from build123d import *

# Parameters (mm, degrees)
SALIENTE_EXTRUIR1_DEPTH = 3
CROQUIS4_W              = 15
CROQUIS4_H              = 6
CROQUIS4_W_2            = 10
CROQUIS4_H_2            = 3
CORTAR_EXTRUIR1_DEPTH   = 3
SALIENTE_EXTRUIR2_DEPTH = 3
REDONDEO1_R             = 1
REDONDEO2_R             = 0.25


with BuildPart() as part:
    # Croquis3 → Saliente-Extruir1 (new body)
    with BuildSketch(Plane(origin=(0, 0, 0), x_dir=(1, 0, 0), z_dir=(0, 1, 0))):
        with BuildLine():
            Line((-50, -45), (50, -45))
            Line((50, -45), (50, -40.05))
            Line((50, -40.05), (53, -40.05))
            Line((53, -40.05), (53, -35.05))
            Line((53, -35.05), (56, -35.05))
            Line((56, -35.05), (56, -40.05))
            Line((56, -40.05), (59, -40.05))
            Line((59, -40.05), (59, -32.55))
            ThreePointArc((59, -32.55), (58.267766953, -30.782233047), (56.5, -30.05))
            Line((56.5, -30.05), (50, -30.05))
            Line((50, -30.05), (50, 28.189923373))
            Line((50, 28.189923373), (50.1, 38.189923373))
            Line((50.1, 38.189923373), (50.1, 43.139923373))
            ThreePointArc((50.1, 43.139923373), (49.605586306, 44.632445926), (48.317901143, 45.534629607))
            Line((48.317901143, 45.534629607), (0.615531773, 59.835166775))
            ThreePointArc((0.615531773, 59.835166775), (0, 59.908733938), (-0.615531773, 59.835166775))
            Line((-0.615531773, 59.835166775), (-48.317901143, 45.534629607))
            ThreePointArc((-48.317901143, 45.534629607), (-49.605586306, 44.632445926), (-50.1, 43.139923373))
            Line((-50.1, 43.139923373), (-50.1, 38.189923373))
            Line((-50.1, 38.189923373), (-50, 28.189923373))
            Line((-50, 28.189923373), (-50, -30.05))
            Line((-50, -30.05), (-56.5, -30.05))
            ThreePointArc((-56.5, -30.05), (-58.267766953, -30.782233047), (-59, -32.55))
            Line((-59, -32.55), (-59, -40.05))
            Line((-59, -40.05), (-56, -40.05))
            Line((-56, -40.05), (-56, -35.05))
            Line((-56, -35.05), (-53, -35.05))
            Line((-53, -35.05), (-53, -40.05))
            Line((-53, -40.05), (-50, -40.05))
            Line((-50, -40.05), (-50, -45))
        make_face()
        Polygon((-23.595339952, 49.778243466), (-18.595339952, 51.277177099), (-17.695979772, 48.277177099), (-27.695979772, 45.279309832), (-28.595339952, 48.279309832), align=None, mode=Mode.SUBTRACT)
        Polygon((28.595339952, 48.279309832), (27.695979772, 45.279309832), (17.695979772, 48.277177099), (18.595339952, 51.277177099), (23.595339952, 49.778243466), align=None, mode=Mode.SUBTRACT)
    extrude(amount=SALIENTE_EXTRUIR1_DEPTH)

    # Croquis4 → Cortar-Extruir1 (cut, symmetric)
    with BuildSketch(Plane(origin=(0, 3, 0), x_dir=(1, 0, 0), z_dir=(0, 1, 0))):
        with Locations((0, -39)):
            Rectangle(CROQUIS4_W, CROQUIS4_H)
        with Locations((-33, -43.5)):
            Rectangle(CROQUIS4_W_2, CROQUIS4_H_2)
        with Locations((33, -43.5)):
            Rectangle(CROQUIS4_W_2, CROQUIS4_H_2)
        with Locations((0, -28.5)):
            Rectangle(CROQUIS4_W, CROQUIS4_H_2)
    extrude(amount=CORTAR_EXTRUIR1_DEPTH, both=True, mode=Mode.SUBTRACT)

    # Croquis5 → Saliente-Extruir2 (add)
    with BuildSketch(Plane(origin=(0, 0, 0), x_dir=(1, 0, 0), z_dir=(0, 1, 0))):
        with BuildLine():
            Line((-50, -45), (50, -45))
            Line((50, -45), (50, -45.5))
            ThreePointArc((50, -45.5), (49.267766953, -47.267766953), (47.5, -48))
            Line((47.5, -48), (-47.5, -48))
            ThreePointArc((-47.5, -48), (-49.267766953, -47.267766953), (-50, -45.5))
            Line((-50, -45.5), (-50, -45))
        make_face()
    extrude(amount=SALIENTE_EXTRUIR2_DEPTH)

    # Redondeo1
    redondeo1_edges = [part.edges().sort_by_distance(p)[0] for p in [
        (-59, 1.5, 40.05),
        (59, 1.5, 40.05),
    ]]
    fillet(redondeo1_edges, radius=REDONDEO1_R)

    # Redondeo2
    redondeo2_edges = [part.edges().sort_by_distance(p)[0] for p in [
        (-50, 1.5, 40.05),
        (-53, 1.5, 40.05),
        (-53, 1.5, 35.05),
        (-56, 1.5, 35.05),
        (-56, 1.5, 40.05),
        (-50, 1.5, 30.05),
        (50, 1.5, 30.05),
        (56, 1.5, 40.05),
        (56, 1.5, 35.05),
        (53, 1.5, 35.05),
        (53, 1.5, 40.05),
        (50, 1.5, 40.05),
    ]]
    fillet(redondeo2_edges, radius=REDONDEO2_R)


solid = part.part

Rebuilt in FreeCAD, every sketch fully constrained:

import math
import FreeCAD as App
import Part
import Sketcher


def edges_at(feature, points):
    """Names of the edges that pass closest to the given points."""
    edges = feature.Shape.Edges
    near = lambda p: min(range(len(edges)), key=lambda i: edges[i].distToShape(Part.Vertex(*p))[0])
    return sorted({f"Edge{near(p) + 1}" for p in points})


def add_polygon(sketch, points):
    """Adds a closed chain of lines whose ends are joined by coincident constraints."""
    first, n = sketch.GeometryCount, len(points)
    for a, b in zip(points, points[1:] + points[:1]):
        sketch.addGeometry(Part.LineSegment(App.Vector(*a, 0), App.Vector(*b, 0)), False)
    for i in range(n):
        sketch.addConstraint(Sketcher.Constraint("Coincident", first + i, 2, first + (i + 1) % n, 1))

doc = App.newDocument("Part")
body = doc.addObject("PartDesign::Body", "Body")

sketch1 = body.newObject("Sketcher::SketchObject", "Sketch")
sketch1.AttachmentSupport = (doc.getObject("XZ_Plane"), [""])
sketch1.MapMode = "FlatFace"
sketch1.addGeometry(Part.LineSegment(App.Vector(-50, 45, 0), App.Vector(50, 45, 0)), False)
sketch1.addGeometry(Part.LineSegment(App.Vector(50, 45, 0), App.Vector(50, 40, 0)), False)
sketch1.addGeometry(Part.LineSegment(App.Vector(50, 40, 0), App.Vector(53, 40, 0)), False)
sketch1.addGeometry(Part.LineSegment(App.Vector(53, 40, 0), App.Vector(53, 35, 0)), False)
sketch1.addGeometry(Part.LineSegment(App.Vector(53, 35, 0), App.Vector(56, 35, 0)), False)
sketch1.addGeometry(Part.LineSegment(App.Vector(56, 35, 0), App.Vector(56, 40, 0)), False)
sketch1.addGeometry(Part.LineSegment(App.Vector(56, 40, 0), App.Vector(59, 40, 0)), False)
sketch1.addGeometry(Part.LineSegment(App.Vector(59, 40, 0), App.Vector(59, 32.5, 0)), False)
sketch1.addGeometry(Part.ArcOfCircle(Part.Circle(App.Vector(56.5, 32.5, 0), App.Vector(0, 0, 1), 2.5), math.radians(-90), math.radians(0)), False)
sketch1.addGeometry(Part.LineSegment(App.Vector(56.5, 30.1, 0), App.Vector(50, 30.1, 0)), False)
sketch1.addGeometry(Part.LineSegment(App.Vector(50, 30.1, 0), App.Vector(50, -28.2, 0)), False)
sketch1.addGeometry(Part.LineSegment(App.Vector(50, -28.2, 0), App.Vector(50.1, -38.2, 0)), False)
sketch1.addGeometry(Part.LineSegment(App.Vector(50.1, -38.2, 0), App.Vector(50.1, -43.1, 0)), False)
sketch1.addGeometry(Part.ArcOfCircle(Part.Circle(App.Vector(47.6, -43.1, 0), App.Vector(0, 0, 1), 2.5), math.radians(-73), math.radians(0)), False)
sketch1.addGeometry(Part.LineSegment(App.Vector(48.3, -45.5, 0), App.Vector(0.6, -59.8, 0)), False)
sketch1.addGeometry(Part.ArcOfCircle(Part.Circle(App.Vector(0, -57.3, 0), App.Vector(0, 0, 1), 2.6), math.radians(-104), math.radians(-76)), False)
sketch1.addGeometry(Part.LineSegment(App.Vector(-0.6, -59.8, 0), App.Vector(-48.3, -45.5, 0)), False)
sketch1.addGeometry(Part.ArcOfCircle(Part.Circle(App.Vector(-47.6, -43.1, 0), App.Vector(0, 0, 1), 2.5), math.radians(180), math.radians(253)), False)
sketch1.addGeometry(Part.LineSegment(App.Vector(-50.1, -43.1, 0), App.Vector(-50.1, -38.2, 0)), False)
sketch1.addGeometry(Part.LineSegment(App.Vector(-50.1, -38.2, 0), App.Vector(-50, -28.2, 0)), False)
sketch1.addGeometry(Part.LineSegment(App.Vector(-50, -28.2, 0), App.Vector(-50, 30.1, 0)), False)
sketch1.addGeometry(Part.LineSegment(App.Vector(-50, 30.1, 0), App.Vector(-56.5, 30.1, 0)), False)
sketch1.addGeometry(Part.ArcOfCircle(Part.Circle(App.Vector(-56.5, 32.5, 0), App.Vector(0, 0, 1), 2.5), math.radians(180), math.radians(270)), False)
sketch1.addGeometry(Part.LineSegment(App.Vector(-59, 32.5, 0), App.Vector(-59, 40, 0)), False)
sketch1.addGeometry(Part.LineSegment(App.Vector(-59, 40, 0), App.Vector(-56, 40, 0)), False)
sketch1.addGeometry(Part.LineSegment(App.Vector(-56, 40, 0), App.Vector(-56, 35, 0)), False)
sketch1.addGeometry(Part.LineSegment(App.Vector(-56, 35, 0), App.Vector(-53, 35, 0)), False)
sketch1.addGeometry(Part.LineSegment(App.Vector(-53, 35, 0), App.Vector(-53, 40, 0)), False)
sketch1.addGeometry(Part.LineSegment(App.Vector(-53, 40, 0), App.Vector(-50, 40, 0)), False)
sketch1.addGeometry(Part.LineSegment(App.Vector(-50, 40, 0), App.Vector(-50, 45, 0)), False)
add_polygon(sketch1, [(-28.6, -48.3), (-23.6, -49.8), (-18.6, -51.3), (-17.7, -48.3), (-27.7, -45.3)])
add_polygon(sketch1, [(23.6, -49.8), (28.6, -48.3), (27.7, -45.3), (17.7, -48.3), (18.6, -51.3)])
sketch1.addConstraint([
    Sketcher.Constraint("Coincident", 0, 2, 1, 1),
    Sketcher.Constraint("Coincident", 1, 2, 2, 1),
    Sketcher.Constraint("Coincident", 2, 2, 3, 1),
    Sketcher.Constraint("Coincident", 3, 2, 4, 1),
    Sketcher.Constraint("Coincident", 4, 2, 5, 1),
    Sketcher.Constraint("Coincident", 5, 2, 6, 1),
    Sketcher.Constraint("Coincident", 6, 2, 7, 1),
    Sketcher.Constraint("Tangent", 7, 2, 8, 2),
    Sketcher.Constraint("Tangent", 8, 1, 9, 1),
    Sketcher.Constraint("Coincident", 9, 2, 10, 1),
    Sketcher.Constraint("Coincident", 10, 2, 11, 1),
    Sketcher.Constraint("Coincident", 11, 2, 12, 1),
    Sketcher.Constraint("Tangent", 12, 2, 13, 2),
    Sketcher.Constraint("Tangent", 13, 1, 14, 1),
    Sketcher.Constraint("Coincident", 14, 2, 15, 2),
    Sketcher.Constraint("Coincident", 15, 1, 16, 1),
    Sketcher.Constraint("Tangent", 16, 2, 17, 2),
    Sketcher.Constraint("Tangent", 17, 1, 18, 1),
    Sketcher.Constraint("Coincident", 18, 2, 19, 1),
    Sketcher.Constraint("Coincident", 19, 2, 20, 1),
    Sketcher.Constraint("Coincident", 20, 2, 21, 1),
    Sketcher.Constraint("Tangent", 21, 2, 22, 2),
    Sketcher.Constraint("Tangent", 22, 1, 23, 1),
    Sketcher.Constraint("Coincident", 23, 2, 24, 1),
    Sketcher.Constraint("Coincident", 24, 2, 25, 1),
    Sketcher.Constraint("Coincident", 25, 2, 26, 1),
    Sketcher.Constraint("Coincident", 26, 2, 27, 1),
    Sketcher.Constraint("Coincident", 27, 2, 28, 1),
    Sketcher.Constraint("Coincident", 28, 2, 29, 1),
    Sketcher.Constraint("Coincident", 29, 2, 0, 1),
    Sketcher.Constraint("Horizontal", 0),
    Sketcher.Constraint("Vertical", 1),
    Sketcher.Constraint("Horizontal", 2),
    Sketcher.Constraint("Vertical", 3),
    Sketcher.Constraint("Horizontal", 4),
    Sketcher.Constraint("Vertical", 5),
    Sketcher.Constraint("Horizontal", 6),
    Sketcher.Constraint("Vertical", 7),
    Sketcher.Constraint("Horizontal", 9),
    Sketcher.Constraint("Vertical", 10),
    Sketcher.Constraint("Vertical", 12),
    Sketcher.Constraint("Vertical", 18),
    Sketcher.Constraint("Vertical", 20),
    Sketcher.Constraint("Horizontal", 21),
    Sketcher.Constraint("Vertical", 23),
    Sketcher.Constraint("Horizontal", 24),
    Sketcher.Constraint("Vertical", 25),
    Sketcher.Constraint("Horizontal", 26),
    Sketcher.Constraint("Vertical", 27),
    Sketcher.Constraint("Horizontal", 28),
    Sketcher.Constraint("Vertical", 29),
    Sketcher.Constraint("Equal", 8, 13),
    Sketcher.Constraint("Equal", 13, 17),
    Sketcher.Constraint("Equal", 17, 22),
    Sketcher.Constraint("Symmetric", 13, 3, 17, 3, -2),
    Sketcher.Constraint("Symmetric", 8, 3, 22, 3, -2),
    Sketcher.Constraint("Symmetric", 14, 2, 15, 1, -2),
    Sketcher.Constraint("Symmetric", 10, 2, 19, 2, -2),
    Sketcher.Constraint("Symmetric", 5, 2, 24, 2, -2),
    Sketcher.Constraint("Symmetric", 3, 2, 26, 2, -2),
    Sketcher.Constraint("Symmetric", 1, 2, 28, 2, -2),
    Sketcher.Constraint("Symmetric", 34, 2, 35, 2, -2),
    Sketcher.Constraint("Symmetric", 33, 2, 36, 2, -2),
    Sketcher.Constraint("Symmetric", 32, 2, 37, 2, -2),
    Sketcher.Constraint("Symmetric", 31, 2, 38, 2, -2),
    Sketcher.Constraint("Symmetric", 30, 2, 39, 2, -2),
    Sketcher.Constraint("Parallel", 16, 30),
    Sketcher.Constraint("Parallel", 30, 31),
    Sketcher.Constraint("Perpendicular", 31, 32),
    Sketcher.Constraint("Perpendicular", 32, 33),
    Sketcher.Constraint("Perpendicular", 33, 34),
    Sketcher.Constraint("Horizontal", 2, 2, 5, 2),
    Sketcher.Constraint("Horizontal", 11, 2, 18, 2),
    Sketcher.Constraint("Vertical", 1, 2, 9, 2),
    Sketcher.Constraint("Equal", 2, 4),
    Sketcher.Constraint("Equal", 4, 6),
    Sketcher.Constraint("Equal", 1, 12),
    Sketcher.Constraint("Equal", 30, 31),
    Sketcher.Constraint("Radius", 8, 2.5),
    Sketcher.Constraint("DistanceX", 0, 1, 0, 2, 100.0),
    Sketcher.Constraint("DistanceX", 2, 1, 2, 2, 3.0),
    Sketcher.Constraint("DistanceY", 3, 2, 3, 1, 5.0),
    Sketcher.Constraint("DistanceY", 7, 2, 7, 1, 7.5),
    Sketcher.Constraint("DistanceY", -1, 1, 0, 2, 45.0),
    Sketcher.Constraint("DistanceY", 11, 2, 10, 2, 10.0),
    Sketcher.Constraint("DistanceX", 30, 2, 31, 2, 5.0),
    Sketcher.Constraint("DistanceY", 31, 2, 32, 2, 3.0),
    Sketcher.Constraint("DistanceY", 1, 2, 1, 1, 4.95),
    Sketcher.Constraint("DistanceX", -1, 1, 13, 3, 47.6),
    Sketcher.Constraint("Radius", 15, 2.611841),
    Sketcher.Constraint("DistanceX", -1, 1, 13, 1, 48.317901),
    Sketcher.Constraint("DistanceY", 10, 2, 10, 1, 58.239923),
    Sketcher.Constraint("DistanceX", -1, 1, 14, 2, 0.615532),
    Sketcher.Constraint("DistanceX", 30, 2, -1, 1, 23.59534),
    Sketcher.Constraint("DistanceY", 33, 2, -1, 1, 45.27931),
])
pad1 = body.newObject("PartDesign::Pad", "Pad")
pad1.Profile = sketch1
pad1.Length = 3
pad1.Reversed = True

sketch2 = body.newObject("Sketcher::SketchObject", "Sketch001")
sketch2.AttachmentSupport = (doc.getObject("XZ_Plane"), [""])
sketch2.MapMode = "FlatFace"
sketch2.AttachmentOffset = App.Placement(App.Vector(0, 0, -3), App.Rotation())
add_polygon(sketch2, [(-7.5, 36), (-7.5, 42), (7.5, 42), (7.5, 36)])
add_polygon(sketch2, [(-38, 42), (-38, 45), (-28, 45), (-28, 42)])
add_polygon(sketch2, [(28, 42), (28, 45), (38, 45), (38, 42)])
add_polygon(sketch2, [(-7.5, 27), (-7.5, 30), (7.5, 30), (7.5, 27)])
sketch2.addConstraint([
    Sketcher.Constraint("Vertical", 0),
    Sketcher.Constraint("Horizontal", 1),
    Sketcher.Constraint("Vertical", 2),
    Sketcher.Constraint("Horizontal", 3),
    Sketcher.Constraint("Vertical", 4),
    Sketcher.Constraint("Horizontal", 5),
    Sketcher.Constraint("Vertical", 6),
    Sketcher.Constraint("Horizontal", 7),
    Sketcher.Constraint("Vertical", 8),
    Sketcher.Constraint("Horizontal", 9),
    Sketcher.Constraint("Vertical", 10),
    Sketcher.Constraint("Horizontal", 11),
    Sketcher.Constraint("Vertical", 12),
    Sketcher.Constraint("Horizontal", 13),
    Sketcher.Constraint("Vertical", 14),
    Sketcher.Constraint("Horizontal", 15),
    Sketcher.Constraint("Symmetric", 5, 2, 8, 2, -2),
    Sketcher.Constraint("Symmetric", 7, 2, 10, 2, -2),
    Sketcher.Constraint("Horizontal", 1, 2, 6, 2),
    Sketcher.Constraint("Vertical", 3, 2, 12, 2),
    Sketcher.Constraint("Vertical", 2, 2, 13, 2),
    Sketcher.Constraint("Equal", 10, 12),
    Sketcher.Constraint("DistanceX", 1, 1, 1, 2, 15.0),
    Sketcher.Constraint("DistanceX", 5, 1, 5, 2, 10.0),
    Sketcher.Constraint("DistanceY", 0, 1, 0, 2, 6.0),
    Sketcher.Constraint("DistanceY", 4, 1, 4, 2, 3.0),
    Sketcher.Constraint("DistanceY", -1, 1, 0, 2, 42.0),
    Sketcher.Constraint("DistanceX", 4, 2, -1, 1, 38.0),
    Sketcher.Constraint("DistanceY", -1, 1, 12, 2, 30.0),
    Sketcher.Constraint("DistanceX", 0, 2, -1, 1, 7.5),
])
pocket1 = body.newObject("PartDesign::Pocket", "Pocket")
pocket1.Profile = sketch2
pocket1.Length = 6
pocket1.Midplane = True

sketch3 = body.newObject("Sketcher::SketchObject", "Sketch002")
sketch3.AttachmentSupport = (doc.getObject("XZ_Plane"), [""])
sketch3.MapMode = "FlatFace"
sketch3.addGeometry([
    Part.LineSegment(App.Vector(50, 45, 0), App.Vector(-50, 45, 0)),
    Part.LineSegment(App.Vector(-50, 45, 0), App.Vector(-50, 45.5, 0)),
    Part.ArcOfCircle(Part.Circle(App.Vector(-47.5, 45.5, 0), App.Vector(0, 0, 1), 2.5), math.radians(90), math.radians(180)),
    Part.LineSegment(App.Vector(-47.5, 48, 0), App.Vector(47.5, 48, 0)),
    Part.ArcOfCircle(Part.Circle(App.Vector(47.5, 45.5, 0), App.Vector(0, 0, 1), 2.5), math.radians(0), math.radians(90)),
    Part.LineSegment(App.Vector(50, 45.5, 0), App.Vector(50, 45, 0)),
], False)
sketch3.addConstraint([
    Sketcher.Constraint("Coincident", 0, 2, 1, 1),
    Sketcher.Constraint("Tangent", 1, 2, 2, 2),
    Sketcher.Constraint("Tangent", 2, 1, 3, 1),
    Sketcher.Constraint("Tangent", 3, 2, 4, 2),
    Sketcher.Constraint("Tangent", 4, 1, 5, 1),
    Sketcher.Constraint("Coincident", 5, 2, 0, 1),
    Sketcher.Constraint("Horizontal", 0),
    Sketcher.Constraint("Vertical", 1),
    Sketcher.Constraint("Horizontal", 3),
    Sketcher.Constraint("Vertical", 5),
    Sketcher.Constraint("Equal", 2, 4),
    Sketcher.Constraint("Radius", 2, 2.5),
    Sketcher.Constraint("DistanceX", 0, 2, 0, 1, 100.0),
    Sketcher.Constraint("DistanceY", 1, 1, 1, 2, 0.5),
    Sketcher.Constraint("DistanceX", 0, 2, -1, 1, 50.0),
    Sketcher.Constraint("DistanceY", -1, 1, 0, 2, 45.0),
])
pad2 = body.newObject("PartDesign::Pad", "Pad001")
pad2.Profile = sketch3
pad2.Length = 3
pad2.Reversed = True
doc.recompute()

fillet = body.newObject("PartDesign::Fillet", "Fillet")
fillet.Base = (pad2, edges_at(pad2, [(-59, 1.5, 40.05), (59, 1.5, 40.05)]))
fillet.Radius = 1
doc.recompute()

fillet2 = body.newObject("PartDesign::Fillet", "Fillet001")
fillet2.Base = (fillet, edges_at(fillet, [
    (-50, 1.5, 40.05),
    (-53, 1.5, 40.05),
    (-53, 1.5, 35.05),
    (-56, 1.5, 35.05),
    (-56, 1.5, 40.05),
    (-50, 1.5, 30.05),
    (50, 1.5, 30.05),
    (56, 1.5, 40.05),
    (56, 1.5, 35.05),
    (53, 1.5, 35.05),
    (53, 1.5, 40.05),
    (50, 1.5, 40.05),
]))
fillet2.Radius = 0.25

doc.recompute()
